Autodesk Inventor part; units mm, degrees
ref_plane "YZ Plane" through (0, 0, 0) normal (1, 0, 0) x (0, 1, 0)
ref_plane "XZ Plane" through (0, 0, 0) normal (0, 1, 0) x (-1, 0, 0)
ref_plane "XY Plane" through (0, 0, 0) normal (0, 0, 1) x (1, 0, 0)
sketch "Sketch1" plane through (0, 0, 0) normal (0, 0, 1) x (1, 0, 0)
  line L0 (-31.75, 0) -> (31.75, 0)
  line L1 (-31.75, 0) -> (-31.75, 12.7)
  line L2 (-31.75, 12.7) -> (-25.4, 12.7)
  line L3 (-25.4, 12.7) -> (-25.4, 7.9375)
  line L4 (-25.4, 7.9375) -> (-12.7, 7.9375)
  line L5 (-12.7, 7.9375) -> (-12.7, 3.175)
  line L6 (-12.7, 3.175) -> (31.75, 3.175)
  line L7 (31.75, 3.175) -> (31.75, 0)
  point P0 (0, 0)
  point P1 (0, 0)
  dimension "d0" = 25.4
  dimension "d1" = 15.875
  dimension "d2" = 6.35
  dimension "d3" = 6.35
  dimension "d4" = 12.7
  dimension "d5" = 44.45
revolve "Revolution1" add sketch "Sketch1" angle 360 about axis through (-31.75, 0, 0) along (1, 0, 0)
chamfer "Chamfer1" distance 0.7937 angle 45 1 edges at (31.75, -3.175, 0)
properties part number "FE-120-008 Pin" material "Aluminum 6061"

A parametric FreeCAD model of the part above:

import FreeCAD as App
import Part
import Sketcher

V = App.Vector
Q = App.Units.Quantity


def edges_at(feature, points):
    """Names of the edges that pass closest to the given points."""
    edges = feature.Shape.Edges
    near = lambda p: min(range(len(edges)), key=lambda i: edges[i].distToShape(Part.Vertex(*p))[0])
    return sorted({f"Edge{near(p) + 1}" for p in points})

doc = App.newDocument("Part")
body = doc.addObject("PartDesign::Body", "Body")

# Sketch on XY plane
sketch1 = body.newObject("Sketcher::SketchObject", "Sketch")
sketch1.AttachmentSupport = (doc.getObject("XY_Plane"), [""])
sketch1.MapMode = "FlatFace"
sketch1.addGeometry([
    Part.LineSegment(V(-31.75, 12.7, 0), V(-31.75, 0, 0)),  # 0
    Part.LineSegment(V(-31.75, 0, 0), V(31.75, 0, 0)),  # 1
    Part.LineSegment(V(31.75, 0, 0), V(31.75, 3.175, 0)),  # 2
    Part.LineSegment(V(31.75, 3.175, 0), V(-12.7, 3.175, 0)),  # 3
    Part.LineSegment(V(-12.7, 3.175, 0), V(-12.7, 7.9375, 0)),  # 4
    Part.LineSegment(V(-12.7, 7.9375, 0), V(-25.4, 7.9375, 0)),  # 5
    Part.LineSegment(V(-25.4, 7.9375, 0), V(-25.4, 12.7, 0)),  # 6
    Part.LineSegment(V(-25.4, 12.7, 0), V(-31.75, 12.7, 0)),  # 7
], False)
sketch1.addConstraint([
    Sketcher.Constraint("Coincident", 0, 2, 1, 1),
    Sketcher.Constraint("Coincident", 1, 2, 2, 1),
    Sketcher.Constraint("Coincident", 2, 2, 3, 1),
    Sketcher.Constraint("Coincident", 3, 2, 4, 1),
    Sketcher.Constraint("Coincident", 4, 2, 5, 1),
    Sketcher.Constraint("Coincident", 5, 2, 6, 1),
    Sketcher.Constraint("Coincident", 6, 2, 7, 1),
    Sketcher.Constraint("Coincident", 7, 2, 0, 1),
    Sketcher.Constraint("Vertical", 0),
    Sketcher.Constraint("Horizontal", 1),
    Sketcher.Constraint("Vertical", 2),
    Sketcher.Constraint("Horizontal", 3),
    Sketcher.Constraint("Vertical", 4),
    Sketcher.Constraint("Horizontal", 5),
    Sketcher.Constraint("Vertical", 6),
    Sketcher.Constraint("Horizontal", 7),
    Sketcher.Constraint("Symmetric", 0, 2, 1, 2, -1, 1),
    Sketcher.Constraint("Equal", 5, 0),
    Sketcher.Constraint("Equal", 4, 6),
    Sketcher.Constraint("DistanceX", 5, 2, 5, 1, Q("0.5 in")),
    Sketcher.Constraint("DistanceX", 5, 2, -1, 1, Q("1 in")),
    Sketcher.Constraint("DistanceX", 3, 2, 3, 1, Q("1.75 in")),
    Sketcher.Constraint("DistanceY", 2, 1, 2, 2, Q("0.125 in")),
])
revolution = body.newObject("PartDesign::Revolution", "Revolution")
revolution.Profile = sketch1
revolution.ReferenceAxis = (sketch1, ["H_Axis"])
revolution.Angle = 360
doc.recompute()

chamfer = body.newObject("PartDesign::Chamfer", "Chamfer")
chamfer.Base = (revolution, edges_at(revolution, [(31.75, -3.175, 0)]))
chamfer.Size = Q("0.031248 in")

doc.recompute()
